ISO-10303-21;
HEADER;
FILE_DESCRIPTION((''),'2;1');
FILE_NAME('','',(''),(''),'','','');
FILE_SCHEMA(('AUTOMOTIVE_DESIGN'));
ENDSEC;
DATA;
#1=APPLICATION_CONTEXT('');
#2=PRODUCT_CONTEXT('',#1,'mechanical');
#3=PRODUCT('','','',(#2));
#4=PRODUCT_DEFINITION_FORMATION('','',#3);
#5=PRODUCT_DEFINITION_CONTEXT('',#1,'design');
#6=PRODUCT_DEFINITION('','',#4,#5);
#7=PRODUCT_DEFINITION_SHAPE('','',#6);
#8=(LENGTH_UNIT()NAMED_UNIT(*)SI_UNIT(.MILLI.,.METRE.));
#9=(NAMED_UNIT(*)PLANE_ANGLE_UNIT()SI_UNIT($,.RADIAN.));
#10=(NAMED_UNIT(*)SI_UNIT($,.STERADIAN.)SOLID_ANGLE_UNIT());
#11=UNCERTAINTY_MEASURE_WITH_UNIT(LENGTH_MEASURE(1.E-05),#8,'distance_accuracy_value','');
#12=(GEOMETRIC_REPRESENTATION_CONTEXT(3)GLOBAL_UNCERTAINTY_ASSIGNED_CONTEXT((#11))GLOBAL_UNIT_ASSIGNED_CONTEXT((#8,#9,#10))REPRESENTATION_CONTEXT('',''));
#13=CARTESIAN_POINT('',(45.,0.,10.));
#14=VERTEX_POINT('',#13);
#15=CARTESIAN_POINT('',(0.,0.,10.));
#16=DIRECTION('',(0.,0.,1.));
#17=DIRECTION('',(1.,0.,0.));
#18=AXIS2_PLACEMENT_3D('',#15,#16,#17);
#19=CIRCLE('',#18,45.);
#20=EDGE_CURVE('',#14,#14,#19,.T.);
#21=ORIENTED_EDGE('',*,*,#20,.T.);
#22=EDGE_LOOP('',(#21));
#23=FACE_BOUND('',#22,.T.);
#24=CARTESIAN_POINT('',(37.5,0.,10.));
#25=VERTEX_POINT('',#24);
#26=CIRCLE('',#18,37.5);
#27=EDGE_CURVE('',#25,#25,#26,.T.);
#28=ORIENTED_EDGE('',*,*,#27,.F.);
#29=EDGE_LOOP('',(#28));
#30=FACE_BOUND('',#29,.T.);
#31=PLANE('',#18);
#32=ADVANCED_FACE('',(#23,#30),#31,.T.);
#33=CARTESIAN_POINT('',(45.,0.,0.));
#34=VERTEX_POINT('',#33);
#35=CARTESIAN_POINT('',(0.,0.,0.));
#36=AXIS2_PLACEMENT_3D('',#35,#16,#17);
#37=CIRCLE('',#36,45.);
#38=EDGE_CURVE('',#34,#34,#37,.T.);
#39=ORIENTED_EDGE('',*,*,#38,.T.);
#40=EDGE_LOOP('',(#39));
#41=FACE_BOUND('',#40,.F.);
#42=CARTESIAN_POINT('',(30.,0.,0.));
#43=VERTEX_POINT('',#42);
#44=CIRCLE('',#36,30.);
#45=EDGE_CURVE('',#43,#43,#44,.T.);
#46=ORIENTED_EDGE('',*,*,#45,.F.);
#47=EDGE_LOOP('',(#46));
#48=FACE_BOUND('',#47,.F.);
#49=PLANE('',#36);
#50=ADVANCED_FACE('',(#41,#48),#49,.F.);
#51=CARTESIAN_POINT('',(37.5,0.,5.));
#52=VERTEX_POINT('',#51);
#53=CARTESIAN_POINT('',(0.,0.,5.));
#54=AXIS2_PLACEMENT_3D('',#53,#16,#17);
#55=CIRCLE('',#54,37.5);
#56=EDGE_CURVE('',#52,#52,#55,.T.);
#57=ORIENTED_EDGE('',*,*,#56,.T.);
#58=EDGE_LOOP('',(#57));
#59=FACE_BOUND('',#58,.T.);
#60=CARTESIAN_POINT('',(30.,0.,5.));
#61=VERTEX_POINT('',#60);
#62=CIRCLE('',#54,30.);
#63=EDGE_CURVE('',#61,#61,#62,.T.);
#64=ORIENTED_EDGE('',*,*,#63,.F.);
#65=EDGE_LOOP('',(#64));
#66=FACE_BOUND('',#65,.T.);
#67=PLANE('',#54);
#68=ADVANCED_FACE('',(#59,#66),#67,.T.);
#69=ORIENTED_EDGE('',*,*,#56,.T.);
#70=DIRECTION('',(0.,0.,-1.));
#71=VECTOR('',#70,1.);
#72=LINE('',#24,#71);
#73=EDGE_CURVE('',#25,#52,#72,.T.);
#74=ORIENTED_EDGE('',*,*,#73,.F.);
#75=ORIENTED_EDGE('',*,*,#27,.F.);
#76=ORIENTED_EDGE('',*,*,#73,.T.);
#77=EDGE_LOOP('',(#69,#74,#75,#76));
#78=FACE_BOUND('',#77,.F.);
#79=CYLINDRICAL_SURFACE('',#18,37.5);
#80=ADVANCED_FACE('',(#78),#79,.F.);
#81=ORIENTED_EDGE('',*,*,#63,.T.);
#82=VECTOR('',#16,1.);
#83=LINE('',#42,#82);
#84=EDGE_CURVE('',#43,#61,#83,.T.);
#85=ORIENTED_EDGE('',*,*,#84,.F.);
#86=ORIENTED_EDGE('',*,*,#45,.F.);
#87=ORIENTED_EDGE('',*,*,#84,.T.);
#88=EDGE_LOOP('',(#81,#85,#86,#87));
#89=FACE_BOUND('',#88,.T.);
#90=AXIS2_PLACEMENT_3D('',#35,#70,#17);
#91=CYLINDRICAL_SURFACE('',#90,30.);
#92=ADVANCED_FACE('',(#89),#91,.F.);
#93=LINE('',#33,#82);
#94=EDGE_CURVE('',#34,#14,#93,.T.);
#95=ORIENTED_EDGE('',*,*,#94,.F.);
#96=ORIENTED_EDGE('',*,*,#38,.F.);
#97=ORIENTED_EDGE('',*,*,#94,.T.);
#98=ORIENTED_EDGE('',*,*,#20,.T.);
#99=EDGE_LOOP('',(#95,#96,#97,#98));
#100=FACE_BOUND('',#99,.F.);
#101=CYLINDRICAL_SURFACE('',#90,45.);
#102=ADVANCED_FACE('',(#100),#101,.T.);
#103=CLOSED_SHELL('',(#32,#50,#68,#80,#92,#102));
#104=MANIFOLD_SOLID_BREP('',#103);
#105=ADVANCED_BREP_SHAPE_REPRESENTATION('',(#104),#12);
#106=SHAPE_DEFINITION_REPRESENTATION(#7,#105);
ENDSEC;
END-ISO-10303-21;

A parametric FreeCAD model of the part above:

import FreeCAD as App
import Part
import Sketcher
from FreeCAD import Vector

doc = App.newDocument("Part")
params = doc.addObject("Spreadsheet::Sheet", "Params")
for row, (alias, value) in enumerate([
    ("sketch1_diameter", "90 mm"),
    ("sketch1_diameter2", "60 mm"),
    ("pad1_length", "10 mm"),
    ("sketch2_diameter", "75 mm"),
    ("sketch2_diameter2", "60 mm"),
    ("pocket1_length", "5 mm"),
], start=1):
    params.set(f"A{row}", alias)
    params.set(f"B{row}", "=" + value)
    params.setAlias(f"B{row}", alias)

body = doc.addObject("PartDesign::Body", "Body")

sketch1 = doc.addObject("Sketcher::SketchObject", "Sketch")
body.addObject(sketch1)
sketch1.AttachmentSupport = (doc.XY_Plane, [""])
sketch1.MapMode = "FlatFace"
sketch1.addGeometry([
    Part.Circle(Vector(0, 0, 0), Vector(0, 0, 1), 45),
    Part.Circle(Vector(0, 0, 0), Vector(0, 0, 1), 30),
], False)
sketch1.addConstraint([
    Sketcher.Constraint("Coincident", 0, 3, -1, 1),
    Sketcher.Constraint("Coincident", 1, 3, -1, 1),
    Sketcher.Constraint("Diameter", 0, 90.0),
    Sketcher.Constraint("Diameter", 1, 60.0),
])
sketch1.setExpression("Constraints[2]", "Params.sketch1_diameter")
sketch1.setExpression("Constraints[3]", "Params.sketch1_diameter2")
pad1 = doc.addObject("PartDesign::Pad", "Pad")
body.addObject(pad1)
pad1.Profile = sketch1
pad1.setExpression("Length", "Params.pad1_length")

sketch2 = doc.addObject("Sketcher::SketchObject", "Sketch001")
body.addObject(sketch2)
sketch2.AttachmentSupport = (doc.XY_Plane, [""])
sketch2.MapMode = "FlatFace"
sketch2.AttachmentOffset = App.Placement(Vector(0, 0, 10), App.Rotation())
sketch2.addGeometry([
    Part.Circle(Vector(0, 0, 0), Vector(0, 0, 1), 38),
    Part.Circle(Vector(0, 0, 0), Vector(0, 0, 1), 30),
], False)
sketch2.addConstraint([
    Sketcher.Constraint("Coincident", 0, 3, -1, 1),
    Sketcher.Constraint("Coincident", 1, 3, -1, 1),
    Sketcher.Constraint("Diameter", 0, 75.0),
    Sketcher.Constraint("Diameter", 1, 60.0),
])
sketch2.setExpression("Constraints[2]", "Params.sketch2_diameter")
sketch2.setExpression("Constraints[3]", "Params.sketch2_diameter2")
pocket1 = doc.addObject("PartDesign::Pocket", "Pocket")
body.addObject(pocket1)
pocket1.Profile = sketch2
pocket1.setExpression("Length", "Params.pocket1_length")

doc.recompute()
